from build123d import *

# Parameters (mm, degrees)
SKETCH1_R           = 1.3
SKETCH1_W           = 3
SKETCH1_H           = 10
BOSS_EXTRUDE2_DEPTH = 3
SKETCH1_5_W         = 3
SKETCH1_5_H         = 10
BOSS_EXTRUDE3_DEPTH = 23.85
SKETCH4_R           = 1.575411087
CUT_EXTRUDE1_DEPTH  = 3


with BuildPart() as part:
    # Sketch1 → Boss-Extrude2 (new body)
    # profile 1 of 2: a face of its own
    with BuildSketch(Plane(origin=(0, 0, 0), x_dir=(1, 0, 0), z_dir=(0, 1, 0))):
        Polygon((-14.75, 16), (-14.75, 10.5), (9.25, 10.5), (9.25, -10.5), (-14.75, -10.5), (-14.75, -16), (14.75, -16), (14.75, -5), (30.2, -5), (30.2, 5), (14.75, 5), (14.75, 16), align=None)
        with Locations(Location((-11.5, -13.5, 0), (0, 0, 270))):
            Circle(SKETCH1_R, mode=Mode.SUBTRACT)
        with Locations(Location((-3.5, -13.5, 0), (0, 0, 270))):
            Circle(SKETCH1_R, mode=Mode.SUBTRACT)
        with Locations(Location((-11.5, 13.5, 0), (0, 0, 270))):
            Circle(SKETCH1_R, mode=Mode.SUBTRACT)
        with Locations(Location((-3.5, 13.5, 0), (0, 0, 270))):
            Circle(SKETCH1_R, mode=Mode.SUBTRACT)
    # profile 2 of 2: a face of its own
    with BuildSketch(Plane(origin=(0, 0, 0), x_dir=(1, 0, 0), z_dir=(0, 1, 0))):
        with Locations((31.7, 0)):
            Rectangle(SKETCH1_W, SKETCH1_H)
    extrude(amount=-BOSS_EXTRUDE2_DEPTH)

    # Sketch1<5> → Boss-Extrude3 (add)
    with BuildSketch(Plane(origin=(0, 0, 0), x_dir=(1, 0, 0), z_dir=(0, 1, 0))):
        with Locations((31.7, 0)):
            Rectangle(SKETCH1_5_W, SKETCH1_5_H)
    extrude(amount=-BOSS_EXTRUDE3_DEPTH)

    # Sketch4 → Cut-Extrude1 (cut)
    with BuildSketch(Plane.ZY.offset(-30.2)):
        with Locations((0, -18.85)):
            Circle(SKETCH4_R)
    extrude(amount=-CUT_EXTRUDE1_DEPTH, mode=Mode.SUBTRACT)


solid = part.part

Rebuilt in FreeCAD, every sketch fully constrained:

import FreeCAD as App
import Part
import Sketcher

doc = App.newDocument("Part")
body = doc.addObject("PartDesign::Body", "Body")

sketch1 = doc.addObject("Sketcher::SketchObject", "Sketch")
body.addObject(sketch1)
sketch1.AttachmentSupport = (doc.XZ_Plane, [""])
sketch1.MapMode = "FlatFace"
sketch1.addGeometry([
    Part.LineSegment(App.Vector(-14.75, -16, 0), App.Vector(-14.75, -10.5, 0)),
    Part.LineSegment(App.Vector(-14.75, -10.5, 0), App.Vector(9.25, -10.5, 0)),
    Part.LineSegment(App.Vector(9.25, -10.5, 0), App.Vector(9.25, 10.5, 0)),
    Part.LineSegment(App.Vector(9.25, 10.5, 0), App.Vector(-14.75, 10.5, 0)),
    Part.LineSegment(App.Vector(-14.75, 10.5, 0), App.Vector(-14.75, 16, 0)),
    Part.LineSegment(App.Vector(-14.75, 16, 0), App.Vector(14.75, 16, 0)),
    Part.LineSegment(App.Vector(14.75, 16, 0), App.Vector(14.75, 5, 0)),
    Part.LineSegment(App.Vector(14.75, 5, 0), App.Vector(33.2, 5, 0)),
    Part.LineSegment(App.Vector(33.2, 5, 0), App.Vector(33.2, -5, 0)),
    Part.LineSegment(App.Vector(33.2, -5, 0), App.Vector(14.75, -5, 0)),
    Part.LineSegment(App.Vector(14.75, -5, 0), App.Vector(14.75, -16, 0)),
    Part.LineSegment(App.Vector(14.75, -16, 0), App.Vector(-14.75, -16, 0)),
    Part.Circle(App.Vector(-11.5, 13.5, 0), App.Vector(0, 0, 1), 1.3),
    Part.Circle(App.Vector(-3.5, 13.5, 0), App.Vector(0, 0, 1), 1.3),
    Part.Circle(App.Vector(-11.5, -13.5, 0), App.Vector(0, 0, 1), 1.3),
    Part.Circle(App.Vector(-3.5, -13.5, 0), App.Vector(0, 0, 1), 1.3),
], False)
sketch1.addConstraint([
    Sketcher.Constraint("Coincident", 0, 2, 1, 1),
    Sketcher.Constraint("Coincident", 1, 2, 2, 1),
    Sketcher.Constraint("Coincident", 2, 2, 3, 1),
    Sketcher.Constraint("Coincident", 3, 2, 4, 1),
    Sketcher.Constraint("Coincident", 4, 2, 5, 1),
    Sketcher.Constraint("Coincident", 5, 2, 6, 1),
    Sketcher.Constraint("Coincident", 6, 2, 7, 1),
    Sketcher.Constraint("Coincident", 7, 2, 8, 1),
    Sketcher.Constraint("Coincident", 8, 2, 9, 1),
    Sketcher.Constraint("Coincident", 9, 2, 10, 1),
    Sketcher.Constraint("Coincident", 10, 2, 11, 1),
    Sketcher.Constraint("Coincident", 11, 2, 0, 1),
    Sketcher.Constraint("Vertical", 0),
    Sketcher.Constraint("Horizontal", 1),
    Sketcher.Constraint("Vertical", 2),
    Sketcher.Constraint("Horizontal", 3),
    Sketcher.Constraint("Vertical", 4),
    Sketcher.Constraint("Horizontal", 5),
    Sketcher.Constraint("Vertical", 6),
    Sketcher.Constraint("Horizontal", 7),
    Sketcher.Constraint("Vertical", 8),
    Sketcher.Constraint("Horizontal", 9),
    Sketcher.Constraint("Vertical", 10),
    Sketcher.Constraint("Horizontal", 11),
    Sketcher.Constraint("Equal", 12, 13),
    Sketcher.Constraint("Equal", 13, 14),
    Sketcher.Constraint("Equal", 14, 15),
    Sketcher.Constraint("Symmetric", 4, 2, 10, 2, -1, 1),
    Sketcher.Constraint("Symmetric", 12, 3, 14, 3, -1),
    Sketcher.Constraint("Symmetric", 13, 3, 15, 3, -1),
    Sketcher.Constraint("Symmetric", 0, 2, 3, 2, -1),
    Sketcher.Constraint("Symmetric", 6, 2, 9, 2, -1),
    Sketcher.Constraint("Horizontal", 12, 3, 13, 3),
    Sketcher.Constraint("Diameter", 12, 2.6),
    Sketcher.Constraint("DistanceX", 1, 1, 1, 2, 24.0),
    Sketcher.Constraint("DistanceY", 2, 1, 2, 2, 21.0),
    Sketcher.Constraint("DistanceY", 6, 2, 6, 1, 11.0),
    Sketcher.Constraint("DistanceY", 8, 2, 8, 1, 10.0),
    Sketcher.Constraint("DistanceX", 5, 1, 5, 2, 29.5),
    Sketcher.Constraint("DistanceX", 12, 3, 13, 3, 8.0),
    Sketcher.Constraint("DistanceY", 14, 3, 12, 3, 27.0),
    Sketcher.Constraint("DistanceX", 7, 1, 7, 2, 18.45),
    Sketcher.Constraint("DistanceX", 12, 3, -1, 1, 11.5),
])
pad1 = doc.addObject("PartDesign::Pad", "Pad")
body.addObject(pad1)
pad1.Profile = sketch1
pad1.Length = 3

sketch2 = doc.addObject("Sketcher::SketchObject", "Sketch001")
body.addObject(sketch2)
sketch2.AttachmentSupport = (doc.XZ_Plane, [""])
sketch2.MapMode = "FlatFace"
sketch2.addGeometry([
    Part.LineSegment(App.Vector(30.2, -5, 0), App.Vector(30.2, 5, 0)),
    Part.LineSegment(App.Vector(30.2, 5, 0), App.Vector(33.2, 5, 0)),
    Part.LineSegment(App.Vector(33.2, 5, 0), App.Vector(33.2, -5, 0)),
    Part.LineSegment(App.Vector(33.2, -5, 0), App.Vector(30.2, -5, 0)),
], False)
sketch2.addConstraint([
    Sketcher.Constraint("Coincident", 0, 2, 1, 1),
    Sketcher.Constraint("Coincident", 1, 2, 2, 1),
    Sketcher.Constraint("Coincident", 2, 2, 3, 1),
    Sketcher.Constraint("Coincident", 3, 2, 0, 1),
    Sketcher.Constraint("Vertical", 0),
    Sketcher.Constraint("Horizontal", 1),
    Sketcher.Constraint("Vertical", 2),
    Sketcher.Constraint("Horizontal", 3),
    Sketcher.Constraint("DistanceX", 1, 1, 1, 2, 3.0),
    Sketcher.Constraint("DistanceY", 0, 1, 0, 2, 10.0),
    Sketcher.Constraint("DistanceY", -1, 1, 0, 2, 5.0),
    Sketcher.Constraint("DistanceX", -1, 1, 0, 2, 30.2),
])
pad2 = doc.addObject("PartDesign::Pad", "Pad001")
body.addObject(pad2)
pad2.Profile = sketch2
pad2.Length = 23.85

sketch3 = doc.addObject("Sketcher::SketchObject", "Sketch002")
body.addObject(sketch3)
sketch3.AttachmentSupport = (doc.YZ_Plane, [""])
sketch3.MapMode = "FlatFace"
sketch3.AttachmentOffset = App.Placement(App.Vector(0, 0, 30.2), App.Rotation())
sketch3.addGeometry(Part.Circle(App.Vector(-18.85, 0, 0), App.Vector(0, 0, 1), 1.575411), False)
sketch3.addConstraint([
    Sketcher.Constraint("PointOnObject", 0, 3, -1),
    Sketcher.Constraint("DistanceX", 0, 3, -1, 1, 18.85),
    Sketcher.Constraint("Diameter", 0, 3.150822),
])
pocket1 = doc.addObject("PartDesign::Pocket", "Pocket")
body.addObject(pocket1)
pocket1.Profile = sketch3
pocket1.Length = 3
pocket1.Reversed = True

doc.recompute()
